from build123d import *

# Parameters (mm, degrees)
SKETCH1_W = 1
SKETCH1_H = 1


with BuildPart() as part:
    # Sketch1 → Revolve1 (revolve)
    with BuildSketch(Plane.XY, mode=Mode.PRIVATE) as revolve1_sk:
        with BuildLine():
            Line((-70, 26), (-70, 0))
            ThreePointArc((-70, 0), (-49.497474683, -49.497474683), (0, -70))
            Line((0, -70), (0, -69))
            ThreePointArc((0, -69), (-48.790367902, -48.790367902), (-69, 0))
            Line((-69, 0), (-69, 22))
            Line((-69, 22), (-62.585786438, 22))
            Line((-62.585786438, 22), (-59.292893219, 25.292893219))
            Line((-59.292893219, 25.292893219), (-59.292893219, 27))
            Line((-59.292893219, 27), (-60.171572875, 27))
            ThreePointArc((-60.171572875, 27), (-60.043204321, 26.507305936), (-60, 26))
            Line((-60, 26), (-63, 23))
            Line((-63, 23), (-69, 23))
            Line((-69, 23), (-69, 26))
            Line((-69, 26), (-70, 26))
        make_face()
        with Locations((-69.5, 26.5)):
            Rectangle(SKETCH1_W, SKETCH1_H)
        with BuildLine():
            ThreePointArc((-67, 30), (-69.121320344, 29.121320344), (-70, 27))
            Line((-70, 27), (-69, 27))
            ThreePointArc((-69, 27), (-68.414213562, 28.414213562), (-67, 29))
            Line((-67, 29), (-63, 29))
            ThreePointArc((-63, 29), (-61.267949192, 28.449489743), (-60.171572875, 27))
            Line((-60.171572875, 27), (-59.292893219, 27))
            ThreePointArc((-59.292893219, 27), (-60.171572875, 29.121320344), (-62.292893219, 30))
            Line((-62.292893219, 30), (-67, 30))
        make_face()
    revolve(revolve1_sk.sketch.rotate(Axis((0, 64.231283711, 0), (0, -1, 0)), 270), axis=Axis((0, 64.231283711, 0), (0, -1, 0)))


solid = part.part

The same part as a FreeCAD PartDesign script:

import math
import FreeCAD as App
import Part
import Sketcher
from FreeCAD import Vector
Q = App.Units.Quantity

doc = App.newDocument("Part")
body = doc.addObject("PartDesign::Body", "Body")

# Sketch on XY plane
sketch1 = body.newObject("Sketcher::SketchObject", "Sketch")
sketch1.AttachmentSupport = (doc.getObject("XY_Plane"), [""])
sketch1.MapMode = "FlatFace"
sketch1.addGeometry(Part.ArcOfCircle(Part.Circle(Vector(0, 0, 0), Vector(0, 0, 1), 70), math.radians(180), math.radians(270)), False)
sketch1.addGeometry(Part.LineSegment(Vector(0, -70, 0), Vector(0, -69, 0)), False)
sketch1.addGeometry(Part.ArcOfCircle(Part.Circle(Vector(0, 0, 0), Vector(0, 0, 1), 69), math.radians(180), math.radians(270)), False)
sketch1.addGeometry(Part.LineSegment(Vector(-69, 0, 0), Vector(-69, 22, 0)), False)
sketch1.addGeometry(Part.LineSegment(Vector(-69, 22, 0), Vector(-62.585786, 22, 0)), False)
sketch1.addGeometry(Part.LineSegment(Vector(-62.585786, 22, 0), Vector(-59.292893, 25.292893, 0)), False)
sketch1.addGeometry(Part.LineSegment(Vector(-59.292893, 25.292893, 0), Vector(-59.292893, 27, 0)), False)
sketch1.addGeometry(Part.ArcOfCircle(Part.Circle(Vector(-62.292893, 27, 0), Vector(0, 0, 1), 3), math.radians(0), math.radians(90)), False)
sketch1.addGeometry(Part.LineSegment(Vector(-62.292893, 30, 0), Vector(-67, 30, 0)), False)
sketch1.addGeometry(Part.ArcOfCircle(Part.Circle(Vector(-67, 27, 0), Vector(0, 0, 1), 3), math.radians(90), math.radians(180)), False)
sketch1.addGeometry(Part.LineSegment(Vector(-70, 27, 0), Vector(-70, 0, 0)), False)
sketch1.addGeometry(Part.ArcOfCircle(Part.Circle(Vector(-63, 26, 0), Vector(0, 0, 1), 3), math.radians(0), math.radians(19.471221)), False)
sketch1.addGeometry(Part.LineSegment(Vector(-60, 26, 0), Vector(-63, 23, 0)), False)
sketch1.addGeometry(Part.LineSegment(Vector(-63, 23, 0), Vector(-69, 23, 0)), False)
sketch1.addGeometry(Part.LineSegment(Vector(-69, 23, 0), Vector(-69, 27, 0)), False)
sketch1.addGeometry(Part.ArcOfCircle(Part.Circle(Vector(-67, 27, 0), Vector(0, 0, 1), 2), math.radians(90), math.radians(180)), False)
sketch1.addGeometry(Part.LineSegment(Vector(-67, 29, 0), Vector(-63, 29, 0)), False)
sketch1.addGeometry(Part.ArcOfCircle(Part.Circle(Vector(-63, 26, 0), Vector(0, 0, 1), 3), math.radians(19.471221), math.radians(90)), False)
sketch1.addConstraint(Sketcher.Constraint("Coincident", 0, 2, 1, 1))
sketch1.addConstraint(Sketcher.Constraint("Coincident", 1, 2, 2, 2))
sketch1.addConstraint(Sketcher.Constraint("Tangent", 2, 1, 3, 1))
sketch1.addConstraint(Sketcher.Constraint("Coincident", 3, 2, 4, 1))
sketch1.addConstraint(Sketcher.Constraint("Coincident", 4, 2, 5, 1))
sketch1.addConstraint(Sketcher.Constraint("Coincident", 5, 2, 6, 1))
sketch1.addConstraint(Sketcher.Constraint("Tangent", 6, 2, 7, 1))
sketch1.addConstraint(Sketcher.Constraint("Tangent", 7, 2, 8, 1))
sketch1.addConstraint(Sketcher.Constraint("Tangent", 8, 2, 9, 1))
sketch1.addConstraint(Sketcher.Constraint("Tangent", 9, 2, 10, 1))
sketch1.addConstraint(Sketcher.Constraint("Tangent", 10, 2, 0, 1))
sketch1.addConstraint(Sketcher.Constraint("Coincident", 11, 1, 12, 1))
sketch1.addConstraint(Sketcher.Constraint("Coincident", 12, 2, 13, 1))
sketch1.addConstraint(Sketcher.Constraint("Coincident", 13, 2, 14, 1))
sketch1.addConstraint(Sketcher.Constraint("Tangent", 14, 2, 15, 2))
sketch1.addConstraint(Sketcher.Constraint("Tangent", 15, 1, 16, 1))
sketch1.addConstraint(Sketcher.Constraint("Tangent", 16, 2, 17, 2))
sketch1.addConstraint(Sketcher.Constraint("Tangent", 17, 1, 11, 2))
sketch1.addConstraint(Sketcher.Constraint("Vertical", 1))
sketch1.addConstraint(Sketcher.Constraint("Vertical", 3))
sketch1.addConstraint(Sketcher.Constraint("Horizontal", 4))
sketch1.addConstraint(Sketcher.Constraint("Vertical", 6))
sketch1.addConstraint(Sketcher.Constraint("Horizontal", 8))
sketch1.addConstraint(Sketcher.Constraint("Vertical", 10))
sketch1.addConstraint(Sketcher.Constraint("Horizontal", 13))
sketch1.addConstraint(Sketcher.Constraint("Vertical", 14))
sketch1.addConstraint(Sketcher.Constraint("Horizontal", 16))
sketch1.addConstraint(Sketcher.Constraint("Coincident", 0, 3, -1, 1))
sketch1.addConstraint(Sketcher.Constraint("Coincident", 2, 3, -1, 1))
sketch1.addConstraint(Sketcher.Constraint("Coincident", 15, 3, 9, 3))
sketch1.addConstraint(Sketcher.Constraint("Equal", 7, 9))
sketch1.addConstraint(Sketcher.Constraint("Equal", 9, 11))
sketch1.addConstraint(Sketcher.Constraint("Equal", 11, 17))
sketch1.addConstraint(Sketcher.Constraint("PointOnObject", 0, 2, -2))
sketch1.addConstraint(Sketcher.Constraint("Parallel", 5, 12))
sketch1.addConstraint(Sketcher.Constraint("Horizontal", 17, 3, 11, 1))
sketch1.addConstraint(Sketcher.Constraint("Horizontal", 14, 2, 17, 1))
sketch1.addConstraint(Sketcher.Constraint("Vertical", 17, 3, 12, 2))
sketch1.addConstraint(Sketcher.Constraint("Vertical", 3, 2, 13, 2))
sketch1.addConstraint(Sketcher.Constraint("Equal", 16, 14))
sketch1.addConstraint(Sketcher.Constraint("Radius", 0, Q("70 mm")))
sketch1.addConstraint(Sketcher.Constraint("Radius", 2, Q("69 mm")))
sketch1.addConstraint(Sketcher.Constraint("Radius", 7, Q("3 mm")))
sketch1.addConstraint(Sketcher.Constraint("DistanceX", 13, 2, 13, 1, Q("6 mm")))
sketch1.addConstraint(Sketcher.Constraint("DistanceY", 3, 1, 3, 2, Q("22 mm")))
sketch1.addConstraint(Sketcher.Constraint("DistanceY", 10, 2, 10, 1, Q("27 mm")))
sketch1.addConstraint(Sketcher.Constraint("DistanceX", 4, 1, 4, 2, Q("6.414214 mm")))
sketch1.addConstraint(Sketcher.Constraint("DistanceX", 8, 2, 8, 1, Q("4.707107 mm")))
revolution = body.newObject("PartDesign::Revolution", "Revolution")
revolution.Profile = sketch1
revolution.ReferenceAxis = (sketch1, ["V_Axis"])
revolution.Angle = 360

doc.recompute()
